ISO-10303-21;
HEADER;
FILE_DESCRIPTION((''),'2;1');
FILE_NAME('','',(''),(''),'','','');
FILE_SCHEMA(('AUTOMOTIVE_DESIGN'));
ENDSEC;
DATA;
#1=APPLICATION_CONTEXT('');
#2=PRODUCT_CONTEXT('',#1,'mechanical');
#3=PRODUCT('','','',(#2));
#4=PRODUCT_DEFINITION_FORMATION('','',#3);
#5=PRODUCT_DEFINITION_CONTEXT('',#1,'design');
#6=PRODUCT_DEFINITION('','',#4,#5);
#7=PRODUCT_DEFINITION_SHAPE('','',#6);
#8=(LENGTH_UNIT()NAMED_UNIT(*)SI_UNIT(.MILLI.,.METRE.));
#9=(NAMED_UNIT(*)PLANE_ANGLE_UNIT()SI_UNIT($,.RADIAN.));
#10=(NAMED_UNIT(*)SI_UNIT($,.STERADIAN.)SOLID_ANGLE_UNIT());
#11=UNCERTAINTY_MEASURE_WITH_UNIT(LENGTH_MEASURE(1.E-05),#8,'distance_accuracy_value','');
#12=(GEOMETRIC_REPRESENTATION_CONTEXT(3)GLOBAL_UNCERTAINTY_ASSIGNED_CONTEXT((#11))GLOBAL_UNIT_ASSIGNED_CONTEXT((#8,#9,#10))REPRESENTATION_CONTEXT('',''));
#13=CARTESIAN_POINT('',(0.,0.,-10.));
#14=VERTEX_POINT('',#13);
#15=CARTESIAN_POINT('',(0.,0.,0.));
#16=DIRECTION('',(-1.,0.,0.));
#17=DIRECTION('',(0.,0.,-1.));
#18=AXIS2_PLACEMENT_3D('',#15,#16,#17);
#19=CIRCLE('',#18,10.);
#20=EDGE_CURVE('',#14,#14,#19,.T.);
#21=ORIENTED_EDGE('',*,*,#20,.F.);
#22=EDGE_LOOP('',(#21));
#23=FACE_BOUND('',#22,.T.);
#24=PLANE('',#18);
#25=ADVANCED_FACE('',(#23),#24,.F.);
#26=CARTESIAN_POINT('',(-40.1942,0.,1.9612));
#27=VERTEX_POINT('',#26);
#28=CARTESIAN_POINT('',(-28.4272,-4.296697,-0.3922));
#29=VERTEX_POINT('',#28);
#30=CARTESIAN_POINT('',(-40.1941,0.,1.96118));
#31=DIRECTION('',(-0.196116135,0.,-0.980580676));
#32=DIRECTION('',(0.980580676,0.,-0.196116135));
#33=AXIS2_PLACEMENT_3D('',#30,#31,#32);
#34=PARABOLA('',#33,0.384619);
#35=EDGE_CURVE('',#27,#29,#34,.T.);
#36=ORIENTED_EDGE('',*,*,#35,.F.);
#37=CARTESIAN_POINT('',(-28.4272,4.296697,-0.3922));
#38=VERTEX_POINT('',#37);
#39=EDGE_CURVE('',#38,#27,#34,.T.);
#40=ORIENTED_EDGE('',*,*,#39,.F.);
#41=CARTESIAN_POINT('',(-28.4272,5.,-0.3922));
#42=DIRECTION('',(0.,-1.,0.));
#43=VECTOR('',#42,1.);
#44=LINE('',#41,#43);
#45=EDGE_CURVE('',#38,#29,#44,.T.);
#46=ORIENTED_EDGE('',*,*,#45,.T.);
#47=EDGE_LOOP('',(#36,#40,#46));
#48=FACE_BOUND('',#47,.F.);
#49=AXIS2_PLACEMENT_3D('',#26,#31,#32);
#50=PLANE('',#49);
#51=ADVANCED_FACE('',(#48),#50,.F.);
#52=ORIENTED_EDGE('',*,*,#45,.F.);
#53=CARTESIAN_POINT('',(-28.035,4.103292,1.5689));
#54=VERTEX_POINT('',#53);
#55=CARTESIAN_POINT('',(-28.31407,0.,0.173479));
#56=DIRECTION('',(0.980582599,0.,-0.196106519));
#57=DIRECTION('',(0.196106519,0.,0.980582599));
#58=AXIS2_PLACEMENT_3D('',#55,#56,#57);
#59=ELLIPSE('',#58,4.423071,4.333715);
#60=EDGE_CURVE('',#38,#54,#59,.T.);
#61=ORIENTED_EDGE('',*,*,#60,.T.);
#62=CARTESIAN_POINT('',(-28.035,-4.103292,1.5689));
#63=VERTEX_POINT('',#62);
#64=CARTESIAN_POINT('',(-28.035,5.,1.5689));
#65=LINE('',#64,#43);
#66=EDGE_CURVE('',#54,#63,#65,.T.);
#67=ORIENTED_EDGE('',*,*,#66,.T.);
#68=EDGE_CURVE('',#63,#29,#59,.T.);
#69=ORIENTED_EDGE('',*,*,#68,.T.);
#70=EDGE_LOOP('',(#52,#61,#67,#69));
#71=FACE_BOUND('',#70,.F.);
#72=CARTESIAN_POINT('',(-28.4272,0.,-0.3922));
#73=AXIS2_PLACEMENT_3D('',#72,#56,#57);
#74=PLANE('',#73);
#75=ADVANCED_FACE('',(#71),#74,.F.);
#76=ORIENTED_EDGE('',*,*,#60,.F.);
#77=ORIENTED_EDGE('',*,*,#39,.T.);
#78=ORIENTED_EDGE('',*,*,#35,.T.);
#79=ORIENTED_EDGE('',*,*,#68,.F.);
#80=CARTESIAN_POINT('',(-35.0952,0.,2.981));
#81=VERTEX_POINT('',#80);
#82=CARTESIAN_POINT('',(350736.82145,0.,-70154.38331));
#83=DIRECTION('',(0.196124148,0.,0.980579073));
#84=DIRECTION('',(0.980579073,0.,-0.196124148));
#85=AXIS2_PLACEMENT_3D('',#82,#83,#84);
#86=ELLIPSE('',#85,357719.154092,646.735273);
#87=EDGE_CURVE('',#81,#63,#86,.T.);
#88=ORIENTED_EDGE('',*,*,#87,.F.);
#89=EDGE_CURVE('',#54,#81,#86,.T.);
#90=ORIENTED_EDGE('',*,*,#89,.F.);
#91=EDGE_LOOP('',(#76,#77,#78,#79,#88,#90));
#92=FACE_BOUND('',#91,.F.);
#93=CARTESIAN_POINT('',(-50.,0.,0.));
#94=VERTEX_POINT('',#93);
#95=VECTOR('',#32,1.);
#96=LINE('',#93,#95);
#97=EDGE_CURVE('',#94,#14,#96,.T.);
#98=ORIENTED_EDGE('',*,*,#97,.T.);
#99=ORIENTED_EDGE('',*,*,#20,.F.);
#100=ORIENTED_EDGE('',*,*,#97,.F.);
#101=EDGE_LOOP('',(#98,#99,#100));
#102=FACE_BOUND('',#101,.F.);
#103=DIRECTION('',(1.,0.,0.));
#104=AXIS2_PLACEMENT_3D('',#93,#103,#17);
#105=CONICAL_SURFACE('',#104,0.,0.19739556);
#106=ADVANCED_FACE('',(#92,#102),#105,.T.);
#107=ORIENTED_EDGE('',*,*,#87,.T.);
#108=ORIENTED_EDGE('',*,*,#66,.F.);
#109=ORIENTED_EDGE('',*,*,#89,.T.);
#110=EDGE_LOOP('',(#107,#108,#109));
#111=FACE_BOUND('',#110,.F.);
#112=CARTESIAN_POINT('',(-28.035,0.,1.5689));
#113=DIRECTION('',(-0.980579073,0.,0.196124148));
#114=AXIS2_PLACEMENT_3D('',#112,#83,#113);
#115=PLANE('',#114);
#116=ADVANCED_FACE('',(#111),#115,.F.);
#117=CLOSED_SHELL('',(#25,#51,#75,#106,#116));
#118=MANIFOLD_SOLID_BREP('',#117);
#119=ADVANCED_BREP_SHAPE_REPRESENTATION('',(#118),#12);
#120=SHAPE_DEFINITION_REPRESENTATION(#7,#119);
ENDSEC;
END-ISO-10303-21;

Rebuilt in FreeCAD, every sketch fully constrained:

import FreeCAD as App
import Part
import Sketcher
Q = App.Units.Quantity


def add_polygon(sketch, points):
    """Adds a closed chain of lines whose ends are joined by coincident constraints."""
    first, n = sketch.GeometryCount, len(points)
    for a, b in zip(points, points[1:] + points[:1]):
        sketch.addGeometry(Part.LineSegment(App.Vector(*a, 0), App.Vector(*b, 0)), False)
    for i in range(n):
        sketch.addConstraint(Sketcher.Constraint("Coincident", first + i, 2, first + (i + 1) % n, 1))

doc = App.newDocument("Part")
body = doc.addObject("PartDesign::Body", "Body")

# Sketch on XZ plane
sketch1 = body.newObject("Sketcher::SketchObject", "Sketch")
sketch1.AttachmentSupport = (doc.getObject("XZ_Plane"), [""])
sketch1.MapMode = "FlatFace"
add_polygon(sketch1, [(-50, 0), (0, 0), (0, -10)])  # lines 0-2
sketch1.addConstraint([
    Sketcher.Constraint("Horizontal", 0),
    Sketcher.Constraint("Vertical", 1),
    Sketcher.Constraint("Coincident", 0, 2, -1, 1),
    Sketcher.Constraint("DistanceX", 0, 1, 0, 2, Q("50 mm")),
    Sketcher.Constraint("DistanceY", 1, 2, 1, 1, Q("10 mm")),
])
revolution = body.newObject("PartDesign::Revolution", "Revolution")
revolution.Profile = sketch1
revolution.ReferenceAxis = (sketch1, ["H_Axis"])
revolution.Angle = 360

# Sketch on XZ plane
sketch2 = body.newObject("Sketcher::SketchObject", "Sketch001")
sketch2.AttachmentSupport = (doc.getObject("XZ_Plane"), [""])
sketch2.MapMode = "FlatFace"
add_polygon(sketch2, [(-28.4, -0.4), (-40.2, 2), (-35.1, 3), (-28, 1.6)])  # lines 0-3
sketch2.addConstraint([
    Sketcher.Constraint("Parallel", 0, 2),
    Sketcher.Constraint("Perpendicular", 2, 3),
    Sketcher.Constraint("Distance", 0, Q("12 mm")),
    Sketcher.Constraint("Distance", 3, Q("2 mm")),
    Sketcher.Constraint("Distance", 1, Q("5.2 mm")),
    Sketcher.Constraint("Angle", 0, Q("168.69 deg")),
    Sketcher.Constraint("DistanceY", -1, 1, 1, 2, Q("2.981 mm")),
    Sketcher.Constraint("DistanceX", 2, 2, -1, 1, Q("28.035 mm")),
])
pocket1 = body.newObject("PartDesign::Pocket", "Pocket")
pocket1.Profile = sketch2
pocket1.Length = 10
pocket1.Midplane = True

doc.recompute()
